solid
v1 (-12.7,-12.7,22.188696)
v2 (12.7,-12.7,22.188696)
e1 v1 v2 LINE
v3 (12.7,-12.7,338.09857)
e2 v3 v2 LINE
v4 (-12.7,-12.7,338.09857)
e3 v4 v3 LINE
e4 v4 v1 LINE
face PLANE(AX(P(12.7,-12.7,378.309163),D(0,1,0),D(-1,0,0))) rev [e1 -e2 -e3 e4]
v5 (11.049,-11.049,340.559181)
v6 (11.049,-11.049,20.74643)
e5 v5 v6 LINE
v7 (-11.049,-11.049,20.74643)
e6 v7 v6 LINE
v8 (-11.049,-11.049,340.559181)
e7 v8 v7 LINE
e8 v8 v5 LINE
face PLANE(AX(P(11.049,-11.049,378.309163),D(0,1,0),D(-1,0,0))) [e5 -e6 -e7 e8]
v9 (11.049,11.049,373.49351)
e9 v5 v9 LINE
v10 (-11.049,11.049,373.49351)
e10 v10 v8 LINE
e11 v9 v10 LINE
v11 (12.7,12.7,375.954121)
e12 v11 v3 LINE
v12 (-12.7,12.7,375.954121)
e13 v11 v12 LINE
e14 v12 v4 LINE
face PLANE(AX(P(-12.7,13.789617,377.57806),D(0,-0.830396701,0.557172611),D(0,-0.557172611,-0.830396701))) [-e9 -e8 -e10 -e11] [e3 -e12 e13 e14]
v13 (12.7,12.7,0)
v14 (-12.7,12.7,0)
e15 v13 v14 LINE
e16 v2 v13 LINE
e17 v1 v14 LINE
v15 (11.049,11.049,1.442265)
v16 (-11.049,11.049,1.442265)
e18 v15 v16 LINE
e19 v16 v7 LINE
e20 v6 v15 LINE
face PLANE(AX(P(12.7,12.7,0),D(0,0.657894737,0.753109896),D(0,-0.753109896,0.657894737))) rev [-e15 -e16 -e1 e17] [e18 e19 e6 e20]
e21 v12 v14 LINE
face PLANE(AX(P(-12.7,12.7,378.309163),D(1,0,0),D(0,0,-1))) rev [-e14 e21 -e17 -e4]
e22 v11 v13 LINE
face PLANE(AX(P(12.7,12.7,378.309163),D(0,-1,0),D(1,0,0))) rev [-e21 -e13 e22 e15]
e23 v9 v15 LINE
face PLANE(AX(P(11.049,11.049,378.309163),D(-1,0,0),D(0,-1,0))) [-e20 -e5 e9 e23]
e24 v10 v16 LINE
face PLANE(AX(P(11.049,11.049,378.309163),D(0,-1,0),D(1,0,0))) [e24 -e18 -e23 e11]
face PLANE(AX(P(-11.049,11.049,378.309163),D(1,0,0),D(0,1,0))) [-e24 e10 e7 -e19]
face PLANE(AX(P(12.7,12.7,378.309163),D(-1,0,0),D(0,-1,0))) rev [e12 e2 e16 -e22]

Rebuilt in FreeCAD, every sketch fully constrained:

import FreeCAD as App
import Part
import Sketcher
Q = App.Units.Quantity

doc = App.newDocument("Part")
params = doc.addObject("Spreadsheet::Sheet", "Params")
for row, (alias, value) in enumerate([
    ("sketch1_width", "1 in"),
    ("sketch1_width2", "0.87 in"),
    ("pad1_length", "378.309163 mm"),
    ("sketch3_width", "1 in"),
], start=1):
    params.set(f"A{row}", alias)
    params.set(f"B{row}", "=" + value)
    params.setAlias(f"B{row}", alias)

body = doc.addObject("PartDesign::Body", "Body")

sketch1 = body.newObject("Sketcher::SketchObject", "Sketch")
sketch1.AttachmentSupport = (doc.getObject("XY_Plane"), [""])
sketch1.MapMode = "FlatFace"
sketch1.addGeometry([
    Part.LineSegment(App.Vector(-13, 13, 0), App.Vector(-13, -13, 0)),
    Part.LineSegment(App.Vector(-13, -13, 0), App.Vector(13, -13, 0)),
    Part.LineSegment(App.Vector(13, -13, 0), App.Vector(13, 13, 0)),
    Part.LineSegment(App.Vector(13, 13, 0), App.Vector(-13, 13, 0)),
    Part.LineSegment(App.Vector(11, -11, 0), App.Vector(-11, -11, 0)),
    Part.LineSegment(App.Vector(-11, -11, 0), App.Vector(-11, 11, 0)),
    Part.LineSegment(App.Vector(-11, 11, 0), App.Vector(11, 11, 0)),
    Part.LineSegment(App.Vector(11, 11, 0), App.Vector(11, -11, 0)),
], False)
sketch1.addConstraint([
    Sketcher.Constraint("Coincident", 0, 2, 1, 1),
    Sketcher.Constraint("Coincident", 1, 2, 2, 1),
    Sketcher.Constraint("Coincident", 2, 2, 3, 1),
    Sketcher.Constraint("Coincident", 3, 2, 0, 1),
    Sketcher.Constraint("Coincident", 4, 2, 5, 1),
    Sketcher.Constraint("Coincident", 5, 2, 6, 1),
    Sketcher.Constraint("Coincident", 6, 2, 7, 1),
    Sketcher.Constraint("Coincident", 7, 2, 4, 1),
    Sketcher.Constraint("Vertical", 0),
    Sketcher.Constraint("Horizontal", 1),
    Sketcher.Constraint("Vertical", 2),
    Sketcher.Constraint("Horizontal", 3),
    Sketcher.Constraint("Horizontal", 4),
    Sketcher.Constraint("Vertical", 5),
    Sketcher.Constraint("Horizontal", 6),
    Sketcher.Constraint("Vertical", 7),
    Sketcher.Constraint("Symmetric", 0, 2, 2, 2, -1, 1),
    Sketcher.Constraint("Symmetric", 4, 2, 6, 2, -1, 1),
    Sketcher.Constraint("Equal", 3, 0),
    Sketcher.Constraint("Equal", 6, 5),
    Sketcher.Constraint("DistanceX", 1, 1, 1, 2, Q("1 in")),
    Sketcher.Constraint("DistanceX", 4, 2, 4, 1, Q("0.87 in")),
])
sketch1.setExpression("Constraints[20]", "Params.sketch1_width")
sketch1.setExpression("Constraints[21]", "Params.sketch1_width2")
pad1 = body.newObject("PartDesign::Pad", "Pad")
pad1.Profile = sketch1
pad1.setExpression("Length", "Params.pad1_length")

sketch2 = body.newObject("Sketcher::SketchObject", "Sketch001")
sketch2.AttachmentSupport = (doc.getObject("YZ_Plane"), [""])
sketch2.MapMode = "FlatFace"
sketch2.AttachmentOffset = App.Placement(App.Vector(0, 0, -0.5 * 25.4), App.Rotation())
sketch2.addGeometry([
    Part.LineSegment(App.Vector(-13, 22, 0), App.Vector(13, 0, 0)),
    Part.LineSegment(App.Vector(13, 0, 0), App.Vector(-16, 0, 0)),
    Part.LineSegment(App.Vector(-16, 0, 0), App.Vector(-13, 22, 0)),
], False)
sketch2.addConstraint([
    Sketcher.Constraint("Coincident", 0, 2, 1, 1),
    Sketcher.Constraint("Coincident", 1, 2, 2, 1),
    Sketcher.Constraint("Coincident", 2, 2, 0, 1),
    Sketcher.Constraint("Horizontal", 1),
    Sketcher.Constraint("PointOnObject", 0, 2, -1),
    Sketcher.Constraint("DistanceX", -1, 1, 0, 2, Q("0.5 in")),
    Sketcher.Constraint("DistanceX", 1, 2, 1, 1, Q("29.091086 mm")),
    Sketcher.Constraint("DistanceY", -1, 1, 2, 2, Q("22.23163 mm")),
    Sketcher.Constraint("DistanceX", 1, 2, 2, 2, Q("3.641939 mm")),
])
pocket1 = body.newObject("PartDesign::Pocket", "Pocket")
pocket1.Profile = sketch2
pocket1.Type = "ThroughAll"
pocket1.Reversed = True

sketch3 = body.newObject("Sketcher::SketchObject", "Sketch002")
sketch3.Placement = App.Placement(App.Vector(0, -132.217061, 182.766863), App.Rotation(App.Vector(1, 0, 0), App.Vector(0, 0.830396701, -0.557172611), App.Vector(0, 0.557172611, 0.830396701), "ZXY"))
sketch3.addGeometry([
    Part.LineSegment(App.Vector(-13, 13, 0), App.Vector(-13, -13, 0)),
    Part.LineSegment(App.Vector(-13, -13, 0), App.Vector(13, -13, 0)),
    Part.LineSegment(App.Vector(13, -13, 0), App.Vector(13, 13, 0)),
    Part.LineSegment(App.Vector(13, 13, 0), App.Vector(-13, 13, 0)),
], False)
sketch3.addConstraint([
    Sketcher.Constraint("Coincident", 0, 2, 1, 1),
    Sketcher.Constraint("Coincident", 1, 2, 2, 1),
    Sketcher.Constraint("Coincident", 2, 2, 3, 1),
    Sketcher.Constraint("Coincident", 3, 2, 0, 1),
    Sketcher.Constraint("Vertical", 0),
    Sketcher.Constraint("Horizontal", 1),
    Sketcher.Constraint("Vertical", 2),
    Sketcher.Constraint("Horizontal", 3),
    Sketcher.Constraint("Symmetric", 0, 2, 2, 2, -1, 1),
    Sketcher.Constraint("Equal", 3, 0),
    Sketcher.Constraint("DistanceX", 1, 1, 1, 2, Q("1 in")),
])
sketch3.setExpression("Constraints[10]", "Params.sketch3_width")
pocket2 = body.newObject("PartDesign::Pocket", "Pocket001")
pocket2.Profile = sketch3
pocket2.Type = "ThroughAll"
pocket2.Reversed = True

doc.recompute()
